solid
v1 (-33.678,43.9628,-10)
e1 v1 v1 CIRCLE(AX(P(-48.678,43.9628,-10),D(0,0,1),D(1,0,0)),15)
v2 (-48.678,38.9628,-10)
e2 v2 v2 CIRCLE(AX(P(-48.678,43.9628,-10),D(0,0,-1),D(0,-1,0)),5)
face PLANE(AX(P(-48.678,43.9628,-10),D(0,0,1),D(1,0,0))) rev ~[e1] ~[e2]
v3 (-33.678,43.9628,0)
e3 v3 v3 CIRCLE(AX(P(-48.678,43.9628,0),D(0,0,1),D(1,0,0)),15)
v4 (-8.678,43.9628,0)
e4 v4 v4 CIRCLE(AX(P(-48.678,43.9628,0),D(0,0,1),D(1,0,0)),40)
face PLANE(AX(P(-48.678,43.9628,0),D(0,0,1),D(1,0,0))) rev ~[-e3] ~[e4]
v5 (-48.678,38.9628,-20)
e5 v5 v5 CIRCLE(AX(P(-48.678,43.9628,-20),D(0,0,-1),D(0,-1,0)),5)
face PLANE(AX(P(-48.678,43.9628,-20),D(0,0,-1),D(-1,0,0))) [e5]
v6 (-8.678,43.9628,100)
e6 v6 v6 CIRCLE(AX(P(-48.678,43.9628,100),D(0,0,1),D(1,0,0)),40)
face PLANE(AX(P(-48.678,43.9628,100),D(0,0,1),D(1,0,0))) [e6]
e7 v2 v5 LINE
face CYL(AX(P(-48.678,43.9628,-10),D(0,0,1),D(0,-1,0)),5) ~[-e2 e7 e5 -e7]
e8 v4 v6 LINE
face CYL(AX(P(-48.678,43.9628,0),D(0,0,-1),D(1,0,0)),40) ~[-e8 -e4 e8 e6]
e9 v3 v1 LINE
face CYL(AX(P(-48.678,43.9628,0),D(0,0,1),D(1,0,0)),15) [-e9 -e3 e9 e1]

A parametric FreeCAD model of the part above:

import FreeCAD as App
import Part
import Sketcher

V = App.Vector
Q = App.Units.Quantity

doc = App.newDocument("Part")
params = doc.addObject("Spreadsheet::Sheet", "Params")
for row, (alias, value) in enumerate([
    ("pad1_length", "3.9370079 in"),
    ("pad2_length", "0.3937008 in"),
    ("pad3_length", "0.3937008 in"),
], start=1):
    params.set(f"A{row}", alias)
    params.set(f"B{row}", "=" + value)
    params.setAlias(f"B{row}", alias)

body = doc.addObject("PartDesign::Body", "Body")

# Sketch on XY plane
sketch1 = body.newObject("Sketcher::SketchObject", "Sketch")
sketch1.AttachmentSupport = (doc.getObject("XY_Plane"), [""])
sketch1.MapMode = "FlatFace"
sketch1.addGeometry(Part.Circle(V(-49, 44, 0), V(0, 0, 1), 40), False)
sketch1.addConstraint([
    Sketcher.Constraint("Diameter", 0, Q("3.1496 in")),
    Sketcher.Constraint("DistanceX", 0, 3, -1, 1, 48.678),
    Sketcher.Constraint("DistanceY", -1, 1, 0, 3, 43.9628),
])
pad1 = body.newObject("PartDesign::Pad", "Pad")
pad1.Profile = sketch1
pad1.setExpression("Length", "Params.pad1_length")

# Sketch on XY plane
sketch2 = body.newObject("Sketcher::SketchObject", "Sketch001")
sketch2.AttachmentSupport = (doc.getObject("XY_Plane"), [""])
sketch2.MapMode = "FlatFace"
sketch2.addGeometry(Part.Circle(V(-49, 44, 0), V(0, 0, 1), 15), False)
sketch2.addConstraint([
    Sketcher.Constraint("Diameter", 0, Q("1.1811 in")),
    Sketcher.Constraint("DistanceX", 0, 3, -1, 1, 48.678),
    Sketcher.Constraint("DistanceY", -1, 1, 0, 3, 43.9628),
])
pad2 = body.newObject("PartDesign::Pad", "Pad001")
pad2.Profile = sketch2
pad2.setExpression("Length", "Params.pad2_length")
pad2.Reversed = True

# Sketch on XY plane
sketch3 = body.newObject("Sketcher::SketchObject", "Sketch002")
sketch3.AttachmentSupport = (doc.getObject("XY_Plane"), [""])
sketch3.MapMode = "FlatFace"
sketch3.AttachmentOffset = App.Placement(V(0, 0, -0.3937008 * 25.4), App.Rotation())
sketch3.addGeometry(Part.Circle(V(-49, 44, 0), V(0, 0, 1), 5), False)
sketch3.addConstraint([
    Sketcher.Constraint("Diameter", 0, Q("0.3937 in")),
    Sketcher.Constraint("DistanceX", 0, 3, -1, 1, 48.678),
    Sketcher.Constraint("DistanceY", -1, 1, 0, 3, 43.9628),
])
pad3 = body.newObject("PartDesign::Pad", "Pad002")
pad3.Profile = sketch3
pad3.setExpression("Length", "Params.pad3_length")
pad3.Reversed = True

doc.recompute()
